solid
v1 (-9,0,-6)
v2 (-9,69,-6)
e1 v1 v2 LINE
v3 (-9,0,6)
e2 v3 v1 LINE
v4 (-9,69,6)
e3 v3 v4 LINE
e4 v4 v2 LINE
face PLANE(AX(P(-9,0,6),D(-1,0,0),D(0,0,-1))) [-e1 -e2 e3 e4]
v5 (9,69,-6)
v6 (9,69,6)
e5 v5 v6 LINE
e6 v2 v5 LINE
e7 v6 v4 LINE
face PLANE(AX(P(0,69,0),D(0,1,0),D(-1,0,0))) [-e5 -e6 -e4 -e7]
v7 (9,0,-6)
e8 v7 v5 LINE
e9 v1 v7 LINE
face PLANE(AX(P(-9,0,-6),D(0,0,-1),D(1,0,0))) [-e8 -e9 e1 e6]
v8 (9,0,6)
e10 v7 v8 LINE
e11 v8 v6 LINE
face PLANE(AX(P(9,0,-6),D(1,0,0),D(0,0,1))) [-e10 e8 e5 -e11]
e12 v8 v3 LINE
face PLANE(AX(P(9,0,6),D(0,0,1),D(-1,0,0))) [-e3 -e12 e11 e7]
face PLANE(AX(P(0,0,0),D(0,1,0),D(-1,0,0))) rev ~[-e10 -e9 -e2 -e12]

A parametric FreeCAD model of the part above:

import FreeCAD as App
import Part
import Sketcher


def add_polygon(sketch, points):
    """Adds a closed chain of lines whose ends are joined by coincident constraints."""
    first, n = sketch.GeometryCount, len(points)
    for a, b in zip(points, points[1:] + points[:1]):
        sketch.addGeometry(Part.LineSegment(App.Vector(*a, 0), App.Vector(*b, 0)), False)
    for i in range(n):
        sketch.addConstraint(Sketcher.Constraint("Coincident", first + i, 2, first + (i + 1) % n, 1))

doc = App.newDocument("Part")
params = doc.addObject("Spreadsheet::Sheet", "Params")
for row, (alias, value) in enumerate([
    ("sketch1_width", "18 mm"),
    ("sketch1_height", "12 mm"),
    ("pad1_length", "69 mm"),
], start=1):
    params.set(f"A{row}", alias)
    params.set(f"B{row}", "=" + value)
    params.setAlias(f"B{row}", alias)

body = doc.addObject("PartDesign::Body", "Body")

# Sketch on XZ plane
sketch1 = body.newObject("Sketcher::SketchObject", "Sketch")
sketch1.AttachmentSupport = (doc.getObject("XZ_Plane"), [""])
sketch1.MapMode = "FlatFace"
add_polygon(sketch1, [(-9, 6), (9, 6), (9, -6), (-9, -6)])  # lines 0-3
sketch1.addConstraint(Sketcher.Constraint("Horizontal", 0))
sketch1.addConstraint(Sketcher.Constraint("Vertical", 1))
sketch1.addConstraint(Sketcher.Constraint("Horizontal", 2))
sketch1.addConstraint(Sketcher.Constraint("Vertical", 3))
sketch1.addConstraint(Sketcher.Constraint("Symmetric", 0, 2, 2, 2, -1, 1))
sketch1.addConstraint(Sketcher.Constraint("DistanceX", 0, 1, 0, 2, 18.0))
sketch1.addConstraint(Sketcher.Constraint("DistanceY", 1, 2, 1, 1, 12.0))
sketch1.setExpression("Constraints[9]", "Params.sketch1_width")
sketch1.setExpression("Constraints[10]", "Params.sketch1_height")
pad1 = body.newObject("PartDesign::Pad", "Pad")
pad1.Profile = sketch1
pad1.setExpression("Length", "Params.pad1_length")
pad1.Reversed = True

doc.recompute()
